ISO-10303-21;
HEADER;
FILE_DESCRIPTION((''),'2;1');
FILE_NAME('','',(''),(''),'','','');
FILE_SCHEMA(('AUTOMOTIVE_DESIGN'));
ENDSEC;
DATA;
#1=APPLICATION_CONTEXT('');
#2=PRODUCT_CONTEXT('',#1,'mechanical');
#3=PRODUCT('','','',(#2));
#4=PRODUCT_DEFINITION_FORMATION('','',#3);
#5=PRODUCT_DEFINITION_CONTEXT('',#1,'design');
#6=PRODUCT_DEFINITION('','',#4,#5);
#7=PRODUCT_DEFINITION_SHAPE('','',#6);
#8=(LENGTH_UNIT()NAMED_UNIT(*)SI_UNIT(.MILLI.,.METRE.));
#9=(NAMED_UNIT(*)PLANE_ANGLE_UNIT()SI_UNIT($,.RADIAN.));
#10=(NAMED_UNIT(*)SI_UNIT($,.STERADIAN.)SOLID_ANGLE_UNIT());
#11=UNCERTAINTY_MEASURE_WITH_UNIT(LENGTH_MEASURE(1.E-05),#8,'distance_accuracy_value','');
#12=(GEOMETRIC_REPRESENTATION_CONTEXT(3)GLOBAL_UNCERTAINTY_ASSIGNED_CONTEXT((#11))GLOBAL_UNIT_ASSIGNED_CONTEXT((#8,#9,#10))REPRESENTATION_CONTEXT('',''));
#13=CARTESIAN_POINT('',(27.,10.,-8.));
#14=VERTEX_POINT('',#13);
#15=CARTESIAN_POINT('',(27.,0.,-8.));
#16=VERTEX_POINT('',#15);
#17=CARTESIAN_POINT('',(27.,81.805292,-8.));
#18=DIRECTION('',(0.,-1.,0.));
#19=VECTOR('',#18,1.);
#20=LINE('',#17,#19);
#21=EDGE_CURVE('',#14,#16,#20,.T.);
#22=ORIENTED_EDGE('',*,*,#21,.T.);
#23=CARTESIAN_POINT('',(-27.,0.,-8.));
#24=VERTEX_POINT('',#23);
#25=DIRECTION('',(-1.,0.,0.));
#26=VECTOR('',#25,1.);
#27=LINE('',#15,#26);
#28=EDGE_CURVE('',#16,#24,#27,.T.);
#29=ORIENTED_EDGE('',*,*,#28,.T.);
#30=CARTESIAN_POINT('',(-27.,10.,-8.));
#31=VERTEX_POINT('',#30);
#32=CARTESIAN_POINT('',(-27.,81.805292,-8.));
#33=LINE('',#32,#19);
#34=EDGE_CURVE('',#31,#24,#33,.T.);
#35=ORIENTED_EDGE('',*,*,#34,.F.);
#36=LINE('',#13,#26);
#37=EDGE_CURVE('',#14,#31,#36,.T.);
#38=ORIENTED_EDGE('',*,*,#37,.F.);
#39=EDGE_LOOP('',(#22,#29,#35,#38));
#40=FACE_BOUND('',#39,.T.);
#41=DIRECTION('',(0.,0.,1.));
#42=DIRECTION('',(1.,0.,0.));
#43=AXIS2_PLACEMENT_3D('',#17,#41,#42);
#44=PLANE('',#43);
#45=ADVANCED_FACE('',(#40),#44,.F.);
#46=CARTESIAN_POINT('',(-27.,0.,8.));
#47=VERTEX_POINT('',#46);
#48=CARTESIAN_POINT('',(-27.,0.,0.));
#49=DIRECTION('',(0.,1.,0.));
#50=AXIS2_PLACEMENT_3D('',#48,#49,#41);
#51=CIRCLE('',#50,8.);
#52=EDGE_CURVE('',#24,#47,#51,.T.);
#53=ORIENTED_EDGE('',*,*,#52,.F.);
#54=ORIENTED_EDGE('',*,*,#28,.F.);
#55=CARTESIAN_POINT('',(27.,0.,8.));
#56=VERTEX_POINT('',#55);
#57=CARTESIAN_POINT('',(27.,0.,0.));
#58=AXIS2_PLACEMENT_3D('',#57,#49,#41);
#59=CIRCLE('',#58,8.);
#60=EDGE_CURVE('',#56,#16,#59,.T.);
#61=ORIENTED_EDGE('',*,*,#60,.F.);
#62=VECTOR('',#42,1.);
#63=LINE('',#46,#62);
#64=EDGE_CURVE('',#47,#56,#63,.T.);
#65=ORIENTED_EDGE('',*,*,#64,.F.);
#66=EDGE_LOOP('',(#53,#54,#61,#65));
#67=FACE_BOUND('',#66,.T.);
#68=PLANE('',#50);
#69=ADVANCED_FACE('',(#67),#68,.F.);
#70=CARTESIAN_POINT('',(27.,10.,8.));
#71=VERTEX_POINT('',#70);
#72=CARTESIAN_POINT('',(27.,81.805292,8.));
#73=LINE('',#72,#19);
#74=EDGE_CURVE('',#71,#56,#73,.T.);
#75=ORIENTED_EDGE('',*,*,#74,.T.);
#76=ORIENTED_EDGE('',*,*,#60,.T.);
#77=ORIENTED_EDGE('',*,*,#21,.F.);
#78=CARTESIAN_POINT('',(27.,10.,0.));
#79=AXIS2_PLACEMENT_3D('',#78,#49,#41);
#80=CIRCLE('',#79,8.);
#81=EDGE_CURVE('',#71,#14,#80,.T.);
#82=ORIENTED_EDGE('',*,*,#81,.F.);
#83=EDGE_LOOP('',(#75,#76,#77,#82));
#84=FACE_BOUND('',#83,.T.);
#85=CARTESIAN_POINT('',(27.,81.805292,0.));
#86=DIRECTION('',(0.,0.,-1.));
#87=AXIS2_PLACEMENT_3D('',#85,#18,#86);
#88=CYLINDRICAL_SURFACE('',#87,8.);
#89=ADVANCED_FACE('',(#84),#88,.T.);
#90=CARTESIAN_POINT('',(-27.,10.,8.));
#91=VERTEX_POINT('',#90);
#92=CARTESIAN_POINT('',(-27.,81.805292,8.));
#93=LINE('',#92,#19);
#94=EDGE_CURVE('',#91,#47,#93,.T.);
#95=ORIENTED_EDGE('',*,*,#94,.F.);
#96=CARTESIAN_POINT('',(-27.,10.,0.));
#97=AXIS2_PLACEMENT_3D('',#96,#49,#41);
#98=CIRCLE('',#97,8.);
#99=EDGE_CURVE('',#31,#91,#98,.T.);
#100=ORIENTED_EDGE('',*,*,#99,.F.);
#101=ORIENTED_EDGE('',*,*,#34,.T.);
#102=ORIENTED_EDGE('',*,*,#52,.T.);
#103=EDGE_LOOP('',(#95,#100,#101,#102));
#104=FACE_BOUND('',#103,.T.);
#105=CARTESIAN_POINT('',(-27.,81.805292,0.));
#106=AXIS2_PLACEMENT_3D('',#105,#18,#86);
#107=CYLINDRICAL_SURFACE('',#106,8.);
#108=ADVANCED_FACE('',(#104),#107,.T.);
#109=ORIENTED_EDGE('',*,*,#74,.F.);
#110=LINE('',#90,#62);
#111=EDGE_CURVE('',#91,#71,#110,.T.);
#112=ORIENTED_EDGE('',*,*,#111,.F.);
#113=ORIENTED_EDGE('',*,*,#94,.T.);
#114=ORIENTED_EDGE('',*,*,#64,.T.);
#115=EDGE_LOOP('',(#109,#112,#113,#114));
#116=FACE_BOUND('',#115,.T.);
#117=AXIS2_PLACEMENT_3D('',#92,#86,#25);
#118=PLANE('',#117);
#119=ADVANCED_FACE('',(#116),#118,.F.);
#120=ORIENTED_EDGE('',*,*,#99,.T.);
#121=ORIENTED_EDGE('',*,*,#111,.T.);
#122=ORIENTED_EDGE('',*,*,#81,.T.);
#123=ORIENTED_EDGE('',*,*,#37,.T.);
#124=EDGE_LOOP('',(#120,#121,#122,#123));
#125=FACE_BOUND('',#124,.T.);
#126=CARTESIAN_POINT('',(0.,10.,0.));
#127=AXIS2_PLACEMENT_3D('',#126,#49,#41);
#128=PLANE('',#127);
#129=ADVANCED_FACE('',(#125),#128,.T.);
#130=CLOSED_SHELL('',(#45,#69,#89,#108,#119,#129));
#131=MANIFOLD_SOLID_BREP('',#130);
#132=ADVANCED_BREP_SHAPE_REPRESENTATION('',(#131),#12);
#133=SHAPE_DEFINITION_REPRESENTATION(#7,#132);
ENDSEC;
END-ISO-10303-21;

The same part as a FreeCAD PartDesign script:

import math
import FreeCAD as App
import Part
import Sketcher

V = App.Vector
Q = App.Units.Quantity

doc = App.newDocument("Part")
body = doc.addObject("PartDesign::Body", "Body")

# Sketch on XZ plane
sketch1 = doc.addObject("Sketcher::SketchObject", "Sketch")
body.addObject(sketch1)
sketch1.AttachmentSupport = (doc.XZ_Plane, [""])
sketch1.MapMode = "FlatFace"
sketch1.addGeometry(Part.LineSegment(V(27, -8, 0), V(-27, -8, 0)), False)
sketch1.addGeometry(Part.ArcOfCircle(Part.Circle(V(-27, 0, 0), V(0, 0, 1), 8), math.radians(90), math.radians(270)), False)
sketch1.addGeometry(Part.LineSegment(V(-27, 8, 0), V(27, 8, 0)), False)
sketch1.addGeometry(Part.ArcOfCircle(Part.Circle(V(27, 0, 0), V(0, 0, 1), 8), math.radians(-90), math.radians(90)), False)
sketch1.addConstraint(Sketcher.Constraint("Tangent", 0, 2, 1, 2))
sketch1.addConstraint(Sketcher.Constraint("Tangent", 1, 1, 2, 1))
sketch1.addConstraint(Sketcher.Constraint("Tangent", 2, 2, 3, 2))
sketch1.addConstraint(Sketcher.Constraint("Tangent", 3, 1, 0, 1))
sketch1.addConstraint(Sketcher.Constraint("Horizontal", 0))
sketch1.addConstraint(Sketcher.Constraint("Horizontal", 2))
sketch1.addConstraint(Sketcher.Constraint("Symmetric", 1, 3, 3, 3, -1, 1))
sketch1.addConstraint(Sketcher.Constraint("Radius", 1, Q("8 mm")))
sketch1.addConstraint(Sketcher.Constraint("DistanceX", 0, 2, 0, 1, Q("54 mm")))
pad1 = doc.addObject("PartDesign::Pad", "Pad")
body.addObject(pad1)
pad1.Profile = sketch1
pad1.Length = 10
pad1.Reversed = True

doc.recompute()
